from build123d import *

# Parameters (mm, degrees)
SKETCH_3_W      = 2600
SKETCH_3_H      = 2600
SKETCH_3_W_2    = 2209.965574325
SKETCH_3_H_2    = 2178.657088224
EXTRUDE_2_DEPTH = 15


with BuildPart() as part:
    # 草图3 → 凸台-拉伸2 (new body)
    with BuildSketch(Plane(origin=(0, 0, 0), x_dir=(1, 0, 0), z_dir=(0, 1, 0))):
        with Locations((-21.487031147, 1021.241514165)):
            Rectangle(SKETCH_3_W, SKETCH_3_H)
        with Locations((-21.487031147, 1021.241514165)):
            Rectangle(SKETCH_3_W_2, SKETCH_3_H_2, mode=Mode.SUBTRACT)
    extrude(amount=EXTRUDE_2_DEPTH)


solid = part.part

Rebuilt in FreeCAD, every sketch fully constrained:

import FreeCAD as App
import Part
import Sketcher
from FreeCAD import Vector


def add_polygon(sketch, points):
    """Adds a closed chain of lines whose ends are joined by coincident constraints."""
    first, n = sketch.GeometryCount, len(points)
    for a, b in zip(points, points[1:] + points[:1]):
        sketch.addGeometry(Part.LineSegment(App.Vector(*a, 0), App.Vector(*b, 0)), False)
    for i in range(n):
        sketch.addConstraint(Sketcher.Constraint("Coincident", first + i, 2, first + (i + 1) % n, 1))

doc = App.newDocument("Part")
body = doc.addObject("PartDesign::Body", "Body")

# Sketch on XZ plane
sketch1 = body.newObject("Sketcher::SketchObject", "Sketch")
sketch1.AttachmentSupport = (doc.getObject("XZ_Plane"), [""])
sketch1.MapMode = "FlatFace"
add_polygon(sketch1, [(-1321, -2321), (-1321, 279), (1279, 279), (1279, -2321)])  # lines 0-3
add_polygon(sketch1, [(1083, 68), (-1126, 68), (-1126, -2111), (1083, -2111)])  # lines 4-7
sketch1.addConstraint([
    Sketcher.Constraint("Vertical", 0),
    Sketcher.Constraint("Horizontal", 1),
    Sketcher.Constraint("Vertical", 2),
    Sketcher.Constraint("Horizontal", 3),
    Sketcher.Constraint("Horizontal", 4),
    Sketcher.Constraint("Vertical", 5),
    Sketcher.Constraint("Horizontal", 6),
    Sketcher.Constraint("Vertical", 7),
    Sketcher.Constraint("Equal", 3, 0),
    Sketcher.Constraint("DistanceX", 1, 1, 1, 2, 2600.0),
    Sketcher.Constraint("DistanceY", 5, 2, 5, 1, 2178.657088),
    Sketcher.Constraint("DistanceX", 4, 2, 4, 1, 2209.965574),
    Sketcher.Constraint("DistanceX", 0, 2, -1, 1, 1321.487031),
    Sketcher.Constraint("DistanceX", 4, 2, -1, 1, 1126.469818),
    Sketcher.Constraint("DistanceY", -1, 1, 4, 2, 68.08703),
    Sketcher.Constraint("DistanceY", -1, 1, 0, 2, 278.758486),
])
pad1 = body.newObject("PartDesign::Pad", "Pad")
pad1.Profile = sketch1
pad1.Length = 15
pad1.Reversed = True

doc.recompute()
